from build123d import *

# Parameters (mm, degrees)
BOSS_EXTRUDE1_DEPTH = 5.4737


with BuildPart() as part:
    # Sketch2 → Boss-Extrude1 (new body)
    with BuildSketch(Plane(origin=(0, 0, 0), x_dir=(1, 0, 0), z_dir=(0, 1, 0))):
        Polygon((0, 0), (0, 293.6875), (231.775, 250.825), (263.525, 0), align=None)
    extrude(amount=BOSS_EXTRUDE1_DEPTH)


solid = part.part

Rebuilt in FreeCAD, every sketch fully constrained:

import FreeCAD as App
import Part
import Sketcher

V = App.Vector
Q = App.Units.Quantity

doc = App.newDocument("Part")
body = doc.addObject("PartDesign::Body", "Body")

sketch1 = doc.addObject("Sketcher::SketchObject", "Sketch")
body.addObject(sketch1)
sketch1.AttachmentSupport = (doc.XZ_Plane, [""])
sketch1.MapMode = "FlatFace"
sketch1.addGeometry(Part.LineSegment(V(0, -294, 0), V(0, 0, 0)), False)
sketch1.addGeometry(Part.LineSegment(V(0, 0, 0), V(264, 0, 0)), False)
sketch1.addGeometry(Part.LineSegment(V(264, 0, 0), V(232, -251, 0)), False)
sketch1.addGeometry(Part.LineSegment(V(232, -251, 0), V(0, -294, 0)), False)
sketch1.addConstraint(Sketcher.Constraint("Coincident", 0, 2, 1, 1))
sketch1.addConstraint(Sketcher.Constraint("Coincident", 1, 2, 2, 1))
sketch1.addConstraint(Sketcher.Constraint("Coincident", 2, 2, 3, 1))
sketch1.addConstraint(Sketcher.Constraint("Coincident", 3, 2, 0, 1))
sketch1.addConstraint(Sketcher.Constraint("Vertical", 0))
sketch1.addConstraint(Sketcher.Constraint("Horizontal", 1))
sketch1.addConstraint(Sketcher.Constraint("Coincident", 0, 2, -1, 1))
sketch1.addConstraint(Sketcher.Constraint("DistanceX", 1, 1, 1, 2, Q("10.375 in")))
sketch1.addConstraint(Sketcher.Constraint("DistanceY", 0, 1, 0, 2, Q("11.5625 in")))
sketch1.addConstraint(Sketcher.Constraint("DistanceX", 2, 2, 1, 2, Q("1.25 in")))
sketch1.addConstraint(Sketcher.Constraint("DistanceY", 2, 2, -1, 1, Q("9.875 in")))
pad1 = doc.addObject("PartDesign::Pad", "Pad")
body.addObject(pad1)
pad1.Profile = sketch1
pad1.Length = Q("0.2155 in")
pad1.Reversed = True

doc.recompute()
